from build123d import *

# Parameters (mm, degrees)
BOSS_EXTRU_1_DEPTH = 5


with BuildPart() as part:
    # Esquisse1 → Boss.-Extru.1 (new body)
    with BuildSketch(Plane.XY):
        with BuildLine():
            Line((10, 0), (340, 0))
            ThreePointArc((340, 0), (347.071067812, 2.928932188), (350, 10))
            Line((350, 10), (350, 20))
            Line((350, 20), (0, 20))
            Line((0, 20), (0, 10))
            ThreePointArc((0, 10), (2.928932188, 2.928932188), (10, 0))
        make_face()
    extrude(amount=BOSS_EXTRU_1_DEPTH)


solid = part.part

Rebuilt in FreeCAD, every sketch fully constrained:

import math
import FreeCAD as App
import Part
import Sketcher

V = App.Vector
Q = App.Units.Quantity

doc = App.newDocument("Part")
params = doc.addObject("Spreadsheet::Sheet", "Params")
for row, (alias, value) in enumerate([
    ("sketch1_radius", "10 mm"),
    ("sketch1_width", "330 mm"),
    ("sketch1_height", "10 mm"),
    ("pad1_length", "5 mm"),
], start=1):
    params.set(f"A{row}", alias)
    params.set(f"B{row}", "=" + value)
    params.setAlias(f"B{row}", alias)

body = doc.addObject("PartDesign::Body", "Body")

sketch1 = body.newObject("Sketcher::SketchObject", "Sketch")
sketch1.AttachmentSupport = (doc.getObject("XY_Plane"), [""])
sketch1.MapMode = "FlatFace"
sketch1.addGeometry([
    Part.LineSegment(V(10, 0, 0), V(340, 0, 0)),
    Part.ArcOfCircle(Part.Circle(V(340, 10, 0), V(0, 0, 1), 10), math.radians(-90), math.radians(0)),
    Part.LineSegment(V(350, 10, 0), V(350, 20, 0)),
    Part.LineSegment(V(350, 20, 0), V(0, 20, 0)),
    Part.LineSegment(V(0, 20, 0), V(0, 10, 0)),
    Part.ArcOfCircle(Part.Circle(V(10, 10, 0), V(0, 0, 1), 10), math.radians(180), math.radians(270)),
], False)
sketch1.addConstraint([
    Sketcher.Constraint("Tangent", 0, 2, 1, 1),
    Sketcher.Constraint("Tangent", 1, 2, 2, 1),
    Sketcher.Constraint("Coincident", 2, 2, 3, 1),
    Sketcher.Constraint("Coincident", 3, 2, 4, 1),
    Sketcher.Constraint("Tangent", 4, 2, 5, 1),
    Sketcher.Constraint("Tangent", 5, 2, 0, 1),
    Sketcher.Constraint("Horizontal", 0),
    Sketcher.Constraint("Vertical", 2),
    Sketcher.Constraint("Horizontal", 3),
    Sketcher.Constraint("Vertical", 4),
    Sketcher.Constraint("Equal", 1, 5),
    Sketcher.Constraint("PointOnObject", 0, 2, -1),
    Sketcher.Constraint("PointOnObject", 3, 2, -2),
    Sketcher.Constraint("Radius", 1, Q("10 mm")),
    Sketcher.Constraint("DistanceX", 0, 1, 0, 2, Q("330 mm")),
    Sketcher.Constraint("DistanceY", 2, 1, 2, 2, Q("10 mm")),
])
sketch1.setExpression("Constraints[13]", "Params.sketch1_radius")
sketch1.setExpression("Constraints[14]", "Params.sketch1_width")
sketch1.setExpression("Constraints[15]", "Params.sketch1_height")
pad1 = body.newObject("PartDesign::Pad", "Pad")
pad1.Profile = sketch1
pad1.setExpression("Length", "Params.pad1_length")

doc.recompute()
